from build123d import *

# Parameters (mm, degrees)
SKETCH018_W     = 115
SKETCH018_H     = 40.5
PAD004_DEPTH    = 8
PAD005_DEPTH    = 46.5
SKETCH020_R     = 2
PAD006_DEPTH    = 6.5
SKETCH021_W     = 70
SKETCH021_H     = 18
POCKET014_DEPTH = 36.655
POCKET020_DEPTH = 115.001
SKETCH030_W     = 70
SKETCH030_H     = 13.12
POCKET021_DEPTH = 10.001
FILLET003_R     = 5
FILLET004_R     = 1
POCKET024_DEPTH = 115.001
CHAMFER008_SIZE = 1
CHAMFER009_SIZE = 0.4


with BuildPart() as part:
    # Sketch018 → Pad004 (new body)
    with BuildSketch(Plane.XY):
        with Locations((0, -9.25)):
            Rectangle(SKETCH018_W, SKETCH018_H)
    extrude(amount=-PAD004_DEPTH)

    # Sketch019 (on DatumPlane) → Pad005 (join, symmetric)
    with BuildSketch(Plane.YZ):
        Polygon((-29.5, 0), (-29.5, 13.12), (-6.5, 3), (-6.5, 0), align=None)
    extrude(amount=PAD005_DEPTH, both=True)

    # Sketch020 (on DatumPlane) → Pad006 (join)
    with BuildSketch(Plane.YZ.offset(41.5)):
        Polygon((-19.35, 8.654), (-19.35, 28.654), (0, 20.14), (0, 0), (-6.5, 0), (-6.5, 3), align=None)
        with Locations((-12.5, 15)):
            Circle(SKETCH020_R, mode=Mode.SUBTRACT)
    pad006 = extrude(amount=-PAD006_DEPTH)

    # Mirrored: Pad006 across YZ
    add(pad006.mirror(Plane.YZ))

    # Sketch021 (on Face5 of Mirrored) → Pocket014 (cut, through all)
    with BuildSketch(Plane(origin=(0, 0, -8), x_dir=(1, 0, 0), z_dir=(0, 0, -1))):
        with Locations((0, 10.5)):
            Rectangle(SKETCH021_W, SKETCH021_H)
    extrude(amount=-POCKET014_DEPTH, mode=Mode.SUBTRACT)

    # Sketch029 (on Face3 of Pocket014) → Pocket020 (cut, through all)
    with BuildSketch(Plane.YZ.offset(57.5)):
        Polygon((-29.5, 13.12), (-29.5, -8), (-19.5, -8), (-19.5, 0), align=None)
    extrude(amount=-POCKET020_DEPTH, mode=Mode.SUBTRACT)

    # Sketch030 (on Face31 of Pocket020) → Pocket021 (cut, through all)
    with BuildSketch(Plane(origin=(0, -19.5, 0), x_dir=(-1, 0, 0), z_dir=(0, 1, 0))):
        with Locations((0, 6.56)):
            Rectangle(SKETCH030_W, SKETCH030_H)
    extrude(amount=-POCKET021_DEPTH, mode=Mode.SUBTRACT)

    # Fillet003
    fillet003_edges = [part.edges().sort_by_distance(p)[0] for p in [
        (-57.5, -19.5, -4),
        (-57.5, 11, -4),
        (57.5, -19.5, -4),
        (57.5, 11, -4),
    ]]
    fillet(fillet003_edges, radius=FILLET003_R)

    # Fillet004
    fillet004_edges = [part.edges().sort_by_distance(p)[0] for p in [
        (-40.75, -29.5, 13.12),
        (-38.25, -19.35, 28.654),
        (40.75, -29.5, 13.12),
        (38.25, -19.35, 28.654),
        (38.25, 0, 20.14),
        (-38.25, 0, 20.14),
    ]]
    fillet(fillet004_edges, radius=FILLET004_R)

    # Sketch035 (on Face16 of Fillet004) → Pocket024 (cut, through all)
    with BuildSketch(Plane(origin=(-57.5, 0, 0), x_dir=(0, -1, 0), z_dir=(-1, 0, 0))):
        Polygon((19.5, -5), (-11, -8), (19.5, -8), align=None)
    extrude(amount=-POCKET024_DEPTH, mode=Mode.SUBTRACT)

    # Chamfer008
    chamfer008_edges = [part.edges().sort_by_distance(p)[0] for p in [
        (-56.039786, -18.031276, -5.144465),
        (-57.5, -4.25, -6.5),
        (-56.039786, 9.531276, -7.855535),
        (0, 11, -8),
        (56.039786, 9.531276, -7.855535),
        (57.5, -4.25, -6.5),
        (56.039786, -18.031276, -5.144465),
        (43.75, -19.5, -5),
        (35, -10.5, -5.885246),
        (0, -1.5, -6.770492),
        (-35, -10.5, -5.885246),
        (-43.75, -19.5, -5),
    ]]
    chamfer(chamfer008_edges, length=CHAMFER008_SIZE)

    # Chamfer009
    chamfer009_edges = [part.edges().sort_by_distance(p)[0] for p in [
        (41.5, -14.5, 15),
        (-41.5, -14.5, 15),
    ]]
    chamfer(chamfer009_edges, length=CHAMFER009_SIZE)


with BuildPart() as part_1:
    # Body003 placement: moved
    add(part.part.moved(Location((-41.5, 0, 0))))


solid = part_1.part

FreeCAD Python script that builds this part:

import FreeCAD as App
import Part
import Sketcher
Q = App.Units.Quantity


def edges_at(feature, points):
    """Names of the edges that pass closest to the given points."""
    edges = feature.Shape.Edges
    near = lambda p: min(range(len(edges)), key=lambda i: edges[i].distToShape(Part.Vertex(*p))[0])
    return sorted({f"Edge{near(p) + 1}" for p in points})

doc = App.newDocument("Part")
body = doc.addObject("PartDesign::Body", "Body")

sketch1 = body.newObject("Sketcher::SketchObject", "Sketch")
sketch1.AttachmentSupport = (doc.getObject("XY_Plane"), [""])
sketch1.MapMode = "FlatFace"
sketch1.addGeometry([
    Part.LineSegment(App.Vector(-58, 11, 0), App.Vector(-58, -30, 0)),
    Part.LineSegment(App.Vector(-58, -30, 0), App.Vector(58, -30, 0)),
    Part.LineSegment(App.Vector(58, -30, 0), App.Vector(58, 11, 0)),
    Part.LineSegment(App.Vector(58, 11, 0), App.Vector(-58, 11, 0)),
], False)
sketch1.addConstraint([
    Sketcher.Constraint("Coincident", 0, 2, 1, 1),
    Sketcher.Constraint("Coincident", 1, 2, 2, 1),
    Sketcher.Constraint("Coincident", 2, 2, 3, 1),
    Sketcher.Constraint("Coincident", 3, 2, 0, 1),
    Sketcher.Constraint("Vertical", 0),
    Sketcher.Constraint("Horizontal", 1),
    Sketcher.Constraint("Vertical", 2),
    Sketcher.Constraint("Horizontal", 3),
    Sketcher.Constraint("DistanceX", 1, 1, 1, 2, Q("115 mm")),
    Sketcher.Constraint("DistanceY", 0, 2, 0, 1, Q("40.5 mm")),
    Sketcher.Constraint("DistanceY", -1, 1, 2, 2, Q("11 mm")),
    Sketcher.Constraint("DistanceX", 0, 2, -1, 1, Q("57.5 mm")),
])
pad1 = body.newObject("PartDesign::Pad", "Pad")
pad1.Profile = sketch1
pad1.Length = 8
pad1.Reversed = True

sketch2 = body.newObject("Sketcher::SketchObject", "Sketch001")
sketch2.AttachmentSupport = (doc.getObject("YZ_Plane"), [""])
sketch2.MapMode = "FlatFace"
sketch2.addGeometry([
    Part.LineSegment(App.Vector(-29.5, 13.1, 0), App.Vector(-29.5, 0, 0)),
    Part.LineSegment(App.Vector(-29.5, 0, 0), App.Vector(-6.5, 0, 0)),
    Part.LineSegment(App.Vector(-6.5, 0, 0), App.Vector(-6.5, 3, 0)),
    Part.LineSegment(App.Vector(-6.5, 3, 0), App.Vector(-29.5, 13.1, 0)),
], False)
sketch2.addConstraint([
    Sketcher.Constraint("Coincident", 0, 2, 1, 1),
    Sketcher.Constraint("Coincident", 1, 2, 2, 1),
    Sketcher.Constraint("Coincident", 2, 2, 3, 1),
    Sketcher.Constraint("Coincident", 3, 2, 0, 1),
    Sketcher.Constraint("Vertical", 0),
    Sketcher.Constraint("Horizontal", 1),
    Sketcher.Constraint("Vertical", 2),
    Sketcher.Constraint("PointOnObject", 0, 2, -1),
    Sketcher.Constraint("DistanceX", 1, 1, 1, 2, Q("23 mm")),
    Sketcher.Constraint("DistanceY", 2, 1, 2, 2, Q("3 mm")),
    Sketcher.Constraint("DistanceY", 0, 2, 0, 1, Q("13.12 mm")),
    Sketcher.Constraint("DistanceX", 0, 2, -1, 1, Q("29.5 mm")),
])
pad2 = body.newObject("PartDesign::Pad", "Pad001")
pad2.Profile = sketch2
pad2.Length = 93
pad2.Midplane = True

sketch3 = body.newObject("Sketcher::SketchObject", "Sketch002")
sketch3.AttachmentSupport = (doc.getObject("YZ_Plane"), [""])
sketch3.MapMode = "FlatFace"
sketch3.AttachmentOffset = App.Placement(App.Vector(0, 0, 41.5), App.Rotation())
sketch3.addGeometry([
    Part.LineSegment(App.Vector(-19.4, 28.7, 0), App.Vector(-19.4, 8.7, 0)),
    Part.LineSegment(App.Vector(-19.4, 8.7, 0), App.Vector(-6.5, 3, 0)),
    Part.LineSegment(App.Vector(-6.5, 3, 0), App.Vector(-6.5, 0, 0)),
    Part.LineSegment(App.Vector(-6.5, 0, 0), App.Vector(0, 0, 0)),
    Part.LineSegment(App.Vector(0, 0, 0), App.Vector(0, 20.1, 0)),
    Part.LineSegment(App.Vector(0, 20.1, 0), App.Vector(-19.4, 28.7, 0)),
    Part.Circle(App.Vector(-12.5, 15, 0), App.Vector(0, 0, 1), 2),
], False)
sketch3.addConstraint([
    Sketcher.Constraint("Coincident", 0, 2, 1, 1),
    Sketcher.Constraint("Coincident", 1, 2, 2, 1),
    Sketcher.Constraint("Coincident", 2, 2, 3, 1),
    Sketcher.Constraint("Coincident", 3, 2, 4, 1),
    Sketcher.Constraint("Coincident", 4, 2, 5, 1),
    Sketcher.Constraint("Coincident", 5, 2, 0, 1),
    Sketcher.Constraint("Vertical", 0),
    Sketcher.Constraint("Vertical", 2),
    Sketcher.Constraint("Horizontal", 3),
    Sketcher.Constraint("Vertical", 4),
    Sketcher.Constraint("Coincident", 3, 2, -1, 1),
    Sketcher.Constraint("Parallel", 1, 5),
    Sketcher.Constraint("Diameter", 6, Q("4 mm")),
    Sketcher.Constraint("DistanceY", 0, 2, 0, 1, Q("20 mm")),
    Sketcher.Constraint("DistanceY", 2, 2, 2, 1, Q("3 mm")),
    Sketcher.Constraint("DistanceX", 3, 1, 3, 2, Q("6.5 mm")),
    Sketcher.Constraint("DistanceY", -1, 1, 6, 3, Q("15 mm")),
    Sketcher.Constraint("DistanceX", 6, 3, 1, 2, Q("6 mm")),
    Sketcher.Constraint("DistanceY", 4, 1, 4, 2, Q("20.14 mm")),
    Sketcher.Constraint("DistanceX", 0, 2, -1, 1, Q("19.35 mm")),
])
pad3 = body.newObject("PartDesign::Pad", "Pad002")
pad3.Profile = sketch3
pad3.Length = 6.5
pad3.Reversed = True
doc.recompute()

mirrored = body.newObject("PartDesign::Mirrored", "Mirrored")
mirrored.Originals = [pad3]
mirrored.MirrorPlane = (doc.getObject("YZ_Plane"), [""])
body.Tip = mirrored

sketch4 = body.newObject("Sketcher::SketchObject", "Sketch003")
sketch4.AttachmentSupport = (doc.getObject("XY_Plane"), [""])
sketch4.MapMode = "FlatFace"
sketch4.AttachmentOffset = App.Placement(App.Vector(0, 0, -8), App.Rotation())
sketch4.addGeometry([
    Part.LineSegment(App.Vector(-35, -20, 0), App.Vector(-35, -2, 0)),
    Part.LineSegment(App.Vector(-35, -2, 0), App.Vector(35, -2, 0)),
    Part.LineSegment(App.Vector(35, -2, 0), App.Vector(35, -20, 0)),
    Part.LineSegment(App.Vector(35, -20, 0), App.Vector(-35, -20, 0)),
], False)
sketch4.addConstraint([
    Sketcher.Constraint("Coincident", 0, 2, 1, 1),
    Sketcher.Constraint("Coincident", 1, 2, 2, 1),
    Sketcher.Constraint("Coincident", 2, 2, 3, 1),
    Sketcher.Constraint("Coincident", 3, 2, 0, 1),
    Sketcher.Constraint("Vertical", 0),
    Sketcher.Constraint("Horizontal", 1),
    Sketcher.Constraint("Vertical", 2),
    Sketcher.Constraint("Horizontal", 3),
    Sketcher.Constraint("DistanceX", 1, 1, 1, 2, Q("70 mm")),
    Sketcher.Constraint("DistanceY", 0, 1, 0, 2, Q("18 mm")),
    Sketcher.Constraint("DistanceX", 0, 2, -1, 1, Q("35 mm")),
    Sketcher.Constraint("DistanceY", 0, 2, -1, 1, Q("1.5 mm")),
])
pocket1 = body.newObject("PartDesign::Pocket", "Pocket")
pocket1.Profile = sketch4
pocket1.Type = "ThroughAll"
pocket1.Reversed = True

sketch5 = body.newObject("Sketcher::SketchObject", "Sketch004")
sketch5.AttachmentSupport = (doc.getObject("YZ_Plane"), [""])
sketch5.MapMode = "FlatFace"
sketch5.AttachmentOffset = App.Placement(App.Vector(0, 0, 57.5), App.Rotation())
sketch5.addGeometry([
    Part.LineSegment(App.Vector(-30, 13, 0), App.Vector(-30, -8, 0)),
    Part.LineSegment(App.Vector(-30, -8, 0), App.Vector(-20, -8, 0)),
    Part.LineSegment(App.Vector(-20, -8, 0), App.Vector(-20, 0, 0)),
    Part.LineSegment(App.Vector(-20, 0, 0), App.Vector(-30, 13, 0)),
], False)
sketch5.addConstraint([
    Sketcher.Constraint("Coincident", 0, 2, 1, 1),
    Sketcher.Constraint("Coincident", 1, 2, 2, 1),
    Sketcher.Constraint("Coincident", 2, 2, 3, 1),
    Sketcher.Constraint("Coincident", 3, 2, 0, 1),
    Sketcher.Constraint("Vertical", 0),
    Sketcher.Constraint("Horizontal", 1),
    Sketcher.Constraint("Vertical", 2),
    Sketcher.Constraint("PointOnObject", 2, 2, -1),
    Sketcher.Constraint("DistanceX", 1, 1, 1, 2, Q("10 mm")),
    Sketcher.Constraint("DistanceY", 2, 1, 2, 2, Q("8 mm")),
    Sketcher.Constraint("DistanceY", 0, 2, 0, 1, Q("21.12 mm")),
    Sketcher.Constraint("DistanceX", 0, 2, -1, 1, Q("29.5 mm")),
])
pocket2 = body.newObject("PartDesign::Pocket", "Pocket001")
pocket2.Profile = sketch5
pocket2.Type = "ThroughAll"

sketch6 = body.newObject("Sketcher::SketchObject", "Sketch005")
sketch6.AttachmentSupport = (doc.getObject("XZ_Plane"), [""])
sketch6.MapMode = "FlatFace"
sketch6.AttachmentOffset = App.Placement(App.Vector(0, 0, 19.5), App.Rotation())
sketch6.addGeometry([
    Part.LineSegment(App.Vector(35, 13, 0), App.Vector(35, 0, 0)),
    Part.LineSegment(App.Vector(35, 0, 0), App.Vector(-35, 0, 0)),
    Part.LineSegment(App.Vector(-35, 0, 0), App.Vector(-35, 13, 0)),
    Part.LineSegment(App.Vector(-35, 13, 0), App.Vector(35, 13, 0)),
], False)
sketch6.addConstraint([
    Sketcher.Constraint("Coincident", 0, 2, 1, 1),
    Sketcher.Constraint("Coincident", 1, 2, 2, 1),
    Sketcher.Constraint("Coincident", 2, 2, 3, 1),
    Sketcher.Constraint("Coincident", 3, 2, 0, 1),
    Sketcher.Constraint("Vertical", 0),
    Sketcher.Constraint("Horizontal", 1),
    Sketcher.Constraint("Vertical", 2),
    Sketcher.Constraint("Horizontal", 3),
    Sketcher.Constraint("Symmetric", 0, 2, 1, 2, -1, 1),
    Sketcher.Constraint("DistanceX", 1, 2, 1, 1, Q("70 mm")),
    Sketcher.Constraint("DistanceY", 0, 2, 0, 1, Q("13.12 mm")),
])
pocket3 = body.newObject("PartDesign::Pocket", "Pocket002")
pocket3.Profile = sketch6
pocket3.Type = "ThroughAll"
pocket3.Reversed = True
doc.recompute()

fillet = body.newObject("PartDesign::Fillet", "Fillet")
fillet.Base = (pocket3, edges_at(pocket3, [
    (-57.5, -19.5, -4),
    (-57.5, 11, -4),
    (57.5, -19.5, -4),
    (57.5, 11, -4),
]))
fillet.Radius = 5
doc.recompute()

fillet2 = body.newObject("PartDesign::Fillet", "Fillet001")
fillet2.Base = (fillet, edges_at(fillet, [
    (-40.75, -29.5, 13.12),
    (-38.25, -19.35, 28.654),
    (40.75, -29.5, 13.12),
    (38.25, -19.35, 28.654),
    (38.25, 0, 20.14),
    (-38.25, 0, 20.14),
]))
fillet2.Radius = 1

sketch7 = body.newObject("Sketcher::SketchObject", "Sketch006")
sketch7.AttachmentSupport = (doc.getObject("YZ_Plane"), [""])
sketch7.MapMode = "FlatFace"
sketch7.AttachmentOffset = App.Placement(App.Vector(0, 0, -57.5), App.Rotation())
sketch7.addGeometry([
    Part.LineSegment(App.Vector(-19.5, -5, 0), App.Vector(11, -8, 0)),
    Part.LineSegment(App.Vector(11, -8, 0), App.Vector(-19.5, -8, 0)),
    Part.LineSegment(App.Vector(-19.5, -8, 0), App.Vector(-19.5, -5, 0)),
], False)
sketch7.addConstraint([
    Sketcher.Constraint("Coincident", 0, 2, 1, 1),
    Sketcher.Constraint("Coincident", 1, 2, 2, 1),
    Sketcher.Constraint("Coincident", 2, 2, 0, 1),
    Sketcher.Constraint("Horizontal", 1),
    Sketcher.Constraint("Vertical", 2),
    Sketcher.Constraint("DistanceY", 2, 1, 2, 2, Q("3 mm")),
    Sketcher.Constraint("DistanceX", 1, 2, 1, 1, Q("30.5 mm")),
    Sketcher.Constraint("DistanceX", -1, 1, 0, 2, Q("11 mm")),
    Sketcher.Constraint("DistanceY", 0, 2, -1, 1, Q("8 mm")),
])
pocket4 = body.newObject("PartDesign::Pocket", "Pocket003")
pocket4.Profile = sketch7
pocket4.Type = "ThroughAll"
pocket4.Reversed = True
doc.recompute()

chamfer = body.newObject("PartDesign::Chamfer", "Chamfer")
chamfer.Base = (pocket4, edges_at(pocket4, [
    (-56.04, -18.031, -5.144),
    (-57.5, -4.25, -6.5),
    (-56.04, 9.531, -7.856),
    (0, 11, -8),
    (56.04, 9.531, -7.856),
    (57.5, -4.25, -6.5),
    (56.04, -18.031, -5.144),
    (43.75, -19.5, -5),
    (35, -10.5, -5.885),
    (0, -1.5, -6.77),
    (-35, -10.5, -5.885),
    (-43.75, -19.5, -5),
]))
chamfer.Size = 1
doc.recompute()

chamfer2 = body.newObject("PartDesign::Chamfer", "Chamfer001")
chamfer2.Base = (chamfer, edges_at(chamfer, [(41.5, -14.5, 15), (-41.5, -14.5, 15)]))
chamfer2.Size = 0.4
body2 = doc.addObject("PartDesign::Body", "Body001")
doc.recompute()

body.Placement = App.Placement(App.Vector(-41.5, 0, 0), App.Rotation(App.Vector(0, 0, 1), 0))
boolean = body2.newObject("PartDesign::Boolean", "Boolean")
boolean.Type = "Fuse"
boolean.addObjects([body])

doc.recompute()
